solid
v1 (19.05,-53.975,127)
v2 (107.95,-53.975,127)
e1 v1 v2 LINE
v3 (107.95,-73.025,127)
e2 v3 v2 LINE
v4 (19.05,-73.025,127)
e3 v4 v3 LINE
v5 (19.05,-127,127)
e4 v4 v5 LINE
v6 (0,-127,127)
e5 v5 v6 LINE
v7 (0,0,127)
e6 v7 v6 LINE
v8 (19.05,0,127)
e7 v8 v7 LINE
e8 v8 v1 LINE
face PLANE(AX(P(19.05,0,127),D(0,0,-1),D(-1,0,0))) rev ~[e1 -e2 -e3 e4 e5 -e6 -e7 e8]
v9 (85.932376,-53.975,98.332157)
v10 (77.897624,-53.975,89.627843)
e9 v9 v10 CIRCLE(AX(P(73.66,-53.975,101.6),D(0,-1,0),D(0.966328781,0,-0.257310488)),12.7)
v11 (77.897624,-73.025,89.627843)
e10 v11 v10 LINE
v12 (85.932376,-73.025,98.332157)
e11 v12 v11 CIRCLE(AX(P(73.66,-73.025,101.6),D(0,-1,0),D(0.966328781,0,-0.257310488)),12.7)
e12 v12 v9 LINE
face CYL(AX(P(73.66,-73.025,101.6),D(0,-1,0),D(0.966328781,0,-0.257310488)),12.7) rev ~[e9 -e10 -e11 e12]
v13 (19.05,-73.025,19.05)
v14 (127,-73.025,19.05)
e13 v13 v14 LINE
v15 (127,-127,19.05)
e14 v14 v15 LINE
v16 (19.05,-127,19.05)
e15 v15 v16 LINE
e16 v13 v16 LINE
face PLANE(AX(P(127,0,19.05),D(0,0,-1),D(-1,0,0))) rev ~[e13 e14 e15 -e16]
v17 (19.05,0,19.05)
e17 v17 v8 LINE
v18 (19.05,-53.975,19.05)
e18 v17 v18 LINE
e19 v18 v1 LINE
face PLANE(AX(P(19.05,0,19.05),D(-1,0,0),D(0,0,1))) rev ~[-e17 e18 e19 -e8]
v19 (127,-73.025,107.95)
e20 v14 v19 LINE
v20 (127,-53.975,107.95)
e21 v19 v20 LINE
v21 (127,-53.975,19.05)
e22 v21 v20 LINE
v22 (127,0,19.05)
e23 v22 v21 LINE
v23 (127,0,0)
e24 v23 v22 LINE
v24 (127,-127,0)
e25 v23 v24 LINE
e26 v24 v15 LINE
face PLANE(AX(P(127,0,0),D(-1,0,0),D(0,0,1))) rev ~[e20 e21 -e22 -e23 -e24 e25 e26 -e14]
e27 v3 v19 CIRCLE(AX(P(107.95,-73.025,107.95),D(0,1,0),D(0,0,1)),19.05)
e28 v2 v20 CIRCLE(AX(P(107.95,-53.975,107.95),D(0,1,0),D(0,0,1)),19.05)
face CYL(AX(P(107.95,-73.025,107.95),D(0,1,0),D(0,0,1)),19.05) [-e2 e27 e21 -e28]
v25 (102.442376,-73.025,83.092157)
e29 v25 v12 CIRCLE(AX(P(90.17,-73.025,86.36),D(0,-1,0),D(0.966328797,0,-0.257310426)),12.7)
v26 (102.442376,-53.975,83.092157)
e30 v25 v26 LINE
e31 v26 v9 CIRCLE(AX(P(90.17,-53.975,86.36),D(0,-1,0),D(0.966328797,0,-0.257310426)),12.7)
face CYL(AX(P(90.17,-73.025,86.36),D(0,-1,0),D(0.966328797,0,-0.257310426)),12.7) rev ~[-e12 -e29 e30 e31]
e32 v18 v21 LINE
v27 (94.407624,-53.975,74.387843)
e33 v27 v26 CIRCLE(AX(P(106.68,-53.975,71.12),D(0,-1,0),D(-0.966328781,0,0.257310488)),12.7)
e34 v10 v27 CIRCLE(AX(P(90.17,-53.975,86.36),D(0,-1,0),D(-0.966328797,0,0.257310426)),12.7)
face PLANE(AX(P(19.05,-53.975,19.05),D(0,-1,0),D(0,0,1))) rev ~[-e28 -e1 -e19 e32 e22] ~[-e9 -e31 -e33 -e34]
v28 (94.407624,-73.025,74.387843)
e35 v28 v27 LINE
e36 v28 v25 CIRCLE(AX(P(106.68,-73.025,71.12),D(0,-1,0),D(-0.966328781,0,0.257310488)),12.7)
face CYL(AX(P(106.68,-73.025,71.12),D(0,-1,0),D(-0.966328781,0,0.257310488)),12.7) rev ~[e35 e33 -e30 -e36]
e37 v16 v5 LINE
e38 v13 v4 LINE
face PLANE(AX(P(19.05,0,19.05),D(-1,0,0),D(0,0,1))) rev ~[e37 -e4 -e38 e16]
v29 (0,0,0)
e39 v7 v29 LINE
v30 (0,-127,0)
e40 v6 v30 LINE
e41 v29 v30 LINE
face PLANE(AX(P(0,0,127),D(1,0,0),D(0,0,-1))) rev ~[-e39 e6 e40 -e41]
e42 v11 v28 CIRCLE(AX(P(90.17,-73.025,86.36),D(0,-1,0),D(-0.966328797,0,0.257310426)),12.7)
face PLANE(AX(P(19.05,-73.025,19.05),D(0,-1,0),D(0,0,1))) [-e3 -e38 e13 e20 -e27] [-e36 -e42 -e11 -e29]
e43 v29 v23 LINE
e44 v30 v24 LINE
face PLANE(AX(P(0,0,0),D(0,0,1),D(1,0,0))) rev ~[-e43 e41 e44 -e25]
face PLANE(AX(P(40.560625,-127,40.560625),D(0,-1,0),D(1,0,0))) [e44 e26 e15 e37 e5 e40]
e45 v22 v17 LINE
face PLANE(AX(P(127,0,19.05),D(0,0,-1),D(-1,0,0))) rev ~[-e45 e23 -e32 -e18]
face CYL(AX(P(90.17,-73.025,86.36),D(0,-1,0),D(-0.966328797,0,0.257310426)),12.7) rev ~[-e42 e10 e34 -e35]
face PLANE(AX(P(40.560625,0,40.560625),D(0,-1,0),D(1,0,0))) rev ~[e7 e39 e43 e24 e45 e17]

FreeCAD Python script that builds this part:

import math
import FreeCAD as App
import Part
import Sketcher
from FreeCAD import Vector
Q = App.Units.Quantity


def edges_at(feature, points):
    """Names of the edges that pass closest to the given points."""
    edges = feature.Shape.Edges
    near = lambda p: min(range(len(edges)), key=lambda i: edges[i].distToShape(Part.Vertex(*p))[0])
    return sorted({f"Edge{near(p) + 1}" for p in points})


def add_polygon(sketch, points):
    """Adds a closed chain of lines whose ends are joined by coincident constraints."""
    first, n = sketch.GeometryCount, len(points)
    for a, b in zip(points, points[1:] + points[:1]):
        sketch.addGeometry(Part.LineSegment(App.Vector(*a, 0), App.Vector(*b, 0)), False)
    for i in range(n):
        sketch.addConstraint(Sketcher.Constraint("Coincident", first + i, 2, first + (i + 1) % n, 1))

doc = App.newDocument("Part")
body = doc.addObject("PartDesign::Body", "Body")

sketch1 = body.newObject("Sketcher::SketchObject", "Sketch")
sketch1.AttachmentSupport = (doc.getObject("XZ_Plane"), [""])
sketch1.MapMode = "FlatFace"
add_polygon(sketch1, [(0, 127), (0, 0), (127, 0), (127, 19), (19, 19), (19, 127)])
sketch1.addConstraint([
    Sketcher.Constraint("Vertical", 0),
    Sketcher.Constraint("Horizontal", 1),
    Sketcher.Constraint("Vertical", 2),
    Sketcher.Constraint("Horizontal", 3),
    Sketcher.Constraint("Vertical", 4),
    Sketcher.Constraint("Horizontal", 5),
    Sketcher.Constraint("Coincident", 0, 2, -1, 1),
    Sketcher.Constraint("Equal", 1, 0),
    Sketcher.Constraint("Equal", 5, 2),
    Sketcher.Constraint("DistanceX", 1, 1, 1, 2, Q("5 in")),
    Sketcher.Constraint("DistanceX", 3, 2, 3, 1, Q("4.25 in")),
])
pad1 = body.newObject("PartDesign::Pad", "Pad")
pad1.Profile = sketch1
pad1.Length = Q("5 in")

sketch2 = body.newObject("Sketcher::SketchObject", "Sketch001")
sketch2.AttachmentSupport = (doc.getObject("YZ_Plane"), [""])
sketch2.MapMode = "FlatFace"
sketch2.AttachmentOffset = App.Placement(Vector(0, 0, 0.75 * 25.4), App.Rotation())
add_polygon(sketch2, [(-73, 127), (-73, 19), (-54, 19), (-54, 127)])
sketch2.addConstraint([
    Sketcher.Constraint("Vertical", 0),
    Sketcher.Constraint("Horizontal", 1),
    Sketcher.Constraint("Vertical", 2),
    Sketcher.Constraint("Horizontal", 3),
    Sketcher.Constraint("DistanceY", -1, 1, 2, 2, Q("5 in")),
    Sketcher.Constraint("DistanceX", 1, 1, 1, 2, Q("0.75 in")),
    Sketcher.Constraint("DistanceY", 0, 2, 0, 1, Q("4.25 in")),
    Sketcher.Constraint("DistanceX", 0, 2, -1, 1, Q("2.875 in")),
])
pad2 = body.newObject("PartDesign::Pad", "Pad001")
pad2.Profile = sketch2
pad2.Length = Q("4.25 in")
doc.recompute()

fillet = body.newObject("PartDesign::Fillet", "Fillet")
fillet.Base = (pad2, edges_at(pad2, [(127, -63.5, 127)]))
fillet.Radius = Q("0.75 in")

sketch3 = body.newObject("Sketcher::SketchObject", "Sketch002")
sketch3.AttachmentSupport = (doc.getObject("XZ_Plane"), [""])
sketch3.MapMode = "FlatFace"
sketch3.AttachmentOffset = App.Placement(Vector(0, 0, 2.875 * 25.4), App.Rotation())
sketch3.addGeometry([
    Part.ArcOfCircle(Part.Circle(Vector(90, 86, 0), Vector(0, 0, 1), 13), math.radians(165), math.radians(289)),
    Part.ArcOfCircle(Part.Circle(Vector(107, 71, 0), Vector(0, 0, 1), 13), math.radians(165), math.radians(469)),
    Part.ArcOfCircle(Part.Circle(Vector(90, 86, 0), Vector(0, 0, 1), 13), math.radians(-15), math.radians(109)),
    Part.ArcOfCircle(Part.Circle(Vector(74, 102, 0), Vector(0, 0, 1), 13), math.radians(-15), math.radians(289)),
], False)
sketch3.addConstraint([
    Sketcher.Constraint("Coincident", 0, 2, 1, 1),
    Sketcher.Constraint("Coincident", 1, 2, 2, 1),
    Sketcher.Constraint("Coincident", 2, 2, 3, 1),
    Sketcher.Constraint("Coincident", 3, 2, 0, 1),
    Sketcher.Constraint("Coincident", 2, 3, 0, 3),
    Sketcher.Constraint("Equal", 0, 1),
    Sketcher.Constraint("Equal", 1, 2),
    Sketcher.Constraint("Equal", 2, 3),
    Sketcher.Constraint("Radius", 0, Q("0.5 in")),
    Sketcher.Constraint("DistanceY", -1, 1, 3, 3, Q("4 in")),
    Sketcher.Constraint("DistanceY", -1, 1, 0, 3, Q("3.4 in")),
    Sketcher.Constraint("DistanceX", -1, 1, 1, 3, Q("4.2 in")),
    Sketcher.Constraint("DistanceY", -1, 1, 1, 3, Q("2.8 in")),
    Sketcher.Constraint("DistanceX", -1, 1, 3, 3, Q("2.9 in")),
    Sketcher.Constraint("DistanceY", 1, 2, 2, 2, Q("0.6 in")),
])
pocket1 = body.newObject("PartDesign::Pocket", "Pocket")
pocket1.Profile = sketch3
pocket1.Length = Q("1 in")

doc.recompute()
